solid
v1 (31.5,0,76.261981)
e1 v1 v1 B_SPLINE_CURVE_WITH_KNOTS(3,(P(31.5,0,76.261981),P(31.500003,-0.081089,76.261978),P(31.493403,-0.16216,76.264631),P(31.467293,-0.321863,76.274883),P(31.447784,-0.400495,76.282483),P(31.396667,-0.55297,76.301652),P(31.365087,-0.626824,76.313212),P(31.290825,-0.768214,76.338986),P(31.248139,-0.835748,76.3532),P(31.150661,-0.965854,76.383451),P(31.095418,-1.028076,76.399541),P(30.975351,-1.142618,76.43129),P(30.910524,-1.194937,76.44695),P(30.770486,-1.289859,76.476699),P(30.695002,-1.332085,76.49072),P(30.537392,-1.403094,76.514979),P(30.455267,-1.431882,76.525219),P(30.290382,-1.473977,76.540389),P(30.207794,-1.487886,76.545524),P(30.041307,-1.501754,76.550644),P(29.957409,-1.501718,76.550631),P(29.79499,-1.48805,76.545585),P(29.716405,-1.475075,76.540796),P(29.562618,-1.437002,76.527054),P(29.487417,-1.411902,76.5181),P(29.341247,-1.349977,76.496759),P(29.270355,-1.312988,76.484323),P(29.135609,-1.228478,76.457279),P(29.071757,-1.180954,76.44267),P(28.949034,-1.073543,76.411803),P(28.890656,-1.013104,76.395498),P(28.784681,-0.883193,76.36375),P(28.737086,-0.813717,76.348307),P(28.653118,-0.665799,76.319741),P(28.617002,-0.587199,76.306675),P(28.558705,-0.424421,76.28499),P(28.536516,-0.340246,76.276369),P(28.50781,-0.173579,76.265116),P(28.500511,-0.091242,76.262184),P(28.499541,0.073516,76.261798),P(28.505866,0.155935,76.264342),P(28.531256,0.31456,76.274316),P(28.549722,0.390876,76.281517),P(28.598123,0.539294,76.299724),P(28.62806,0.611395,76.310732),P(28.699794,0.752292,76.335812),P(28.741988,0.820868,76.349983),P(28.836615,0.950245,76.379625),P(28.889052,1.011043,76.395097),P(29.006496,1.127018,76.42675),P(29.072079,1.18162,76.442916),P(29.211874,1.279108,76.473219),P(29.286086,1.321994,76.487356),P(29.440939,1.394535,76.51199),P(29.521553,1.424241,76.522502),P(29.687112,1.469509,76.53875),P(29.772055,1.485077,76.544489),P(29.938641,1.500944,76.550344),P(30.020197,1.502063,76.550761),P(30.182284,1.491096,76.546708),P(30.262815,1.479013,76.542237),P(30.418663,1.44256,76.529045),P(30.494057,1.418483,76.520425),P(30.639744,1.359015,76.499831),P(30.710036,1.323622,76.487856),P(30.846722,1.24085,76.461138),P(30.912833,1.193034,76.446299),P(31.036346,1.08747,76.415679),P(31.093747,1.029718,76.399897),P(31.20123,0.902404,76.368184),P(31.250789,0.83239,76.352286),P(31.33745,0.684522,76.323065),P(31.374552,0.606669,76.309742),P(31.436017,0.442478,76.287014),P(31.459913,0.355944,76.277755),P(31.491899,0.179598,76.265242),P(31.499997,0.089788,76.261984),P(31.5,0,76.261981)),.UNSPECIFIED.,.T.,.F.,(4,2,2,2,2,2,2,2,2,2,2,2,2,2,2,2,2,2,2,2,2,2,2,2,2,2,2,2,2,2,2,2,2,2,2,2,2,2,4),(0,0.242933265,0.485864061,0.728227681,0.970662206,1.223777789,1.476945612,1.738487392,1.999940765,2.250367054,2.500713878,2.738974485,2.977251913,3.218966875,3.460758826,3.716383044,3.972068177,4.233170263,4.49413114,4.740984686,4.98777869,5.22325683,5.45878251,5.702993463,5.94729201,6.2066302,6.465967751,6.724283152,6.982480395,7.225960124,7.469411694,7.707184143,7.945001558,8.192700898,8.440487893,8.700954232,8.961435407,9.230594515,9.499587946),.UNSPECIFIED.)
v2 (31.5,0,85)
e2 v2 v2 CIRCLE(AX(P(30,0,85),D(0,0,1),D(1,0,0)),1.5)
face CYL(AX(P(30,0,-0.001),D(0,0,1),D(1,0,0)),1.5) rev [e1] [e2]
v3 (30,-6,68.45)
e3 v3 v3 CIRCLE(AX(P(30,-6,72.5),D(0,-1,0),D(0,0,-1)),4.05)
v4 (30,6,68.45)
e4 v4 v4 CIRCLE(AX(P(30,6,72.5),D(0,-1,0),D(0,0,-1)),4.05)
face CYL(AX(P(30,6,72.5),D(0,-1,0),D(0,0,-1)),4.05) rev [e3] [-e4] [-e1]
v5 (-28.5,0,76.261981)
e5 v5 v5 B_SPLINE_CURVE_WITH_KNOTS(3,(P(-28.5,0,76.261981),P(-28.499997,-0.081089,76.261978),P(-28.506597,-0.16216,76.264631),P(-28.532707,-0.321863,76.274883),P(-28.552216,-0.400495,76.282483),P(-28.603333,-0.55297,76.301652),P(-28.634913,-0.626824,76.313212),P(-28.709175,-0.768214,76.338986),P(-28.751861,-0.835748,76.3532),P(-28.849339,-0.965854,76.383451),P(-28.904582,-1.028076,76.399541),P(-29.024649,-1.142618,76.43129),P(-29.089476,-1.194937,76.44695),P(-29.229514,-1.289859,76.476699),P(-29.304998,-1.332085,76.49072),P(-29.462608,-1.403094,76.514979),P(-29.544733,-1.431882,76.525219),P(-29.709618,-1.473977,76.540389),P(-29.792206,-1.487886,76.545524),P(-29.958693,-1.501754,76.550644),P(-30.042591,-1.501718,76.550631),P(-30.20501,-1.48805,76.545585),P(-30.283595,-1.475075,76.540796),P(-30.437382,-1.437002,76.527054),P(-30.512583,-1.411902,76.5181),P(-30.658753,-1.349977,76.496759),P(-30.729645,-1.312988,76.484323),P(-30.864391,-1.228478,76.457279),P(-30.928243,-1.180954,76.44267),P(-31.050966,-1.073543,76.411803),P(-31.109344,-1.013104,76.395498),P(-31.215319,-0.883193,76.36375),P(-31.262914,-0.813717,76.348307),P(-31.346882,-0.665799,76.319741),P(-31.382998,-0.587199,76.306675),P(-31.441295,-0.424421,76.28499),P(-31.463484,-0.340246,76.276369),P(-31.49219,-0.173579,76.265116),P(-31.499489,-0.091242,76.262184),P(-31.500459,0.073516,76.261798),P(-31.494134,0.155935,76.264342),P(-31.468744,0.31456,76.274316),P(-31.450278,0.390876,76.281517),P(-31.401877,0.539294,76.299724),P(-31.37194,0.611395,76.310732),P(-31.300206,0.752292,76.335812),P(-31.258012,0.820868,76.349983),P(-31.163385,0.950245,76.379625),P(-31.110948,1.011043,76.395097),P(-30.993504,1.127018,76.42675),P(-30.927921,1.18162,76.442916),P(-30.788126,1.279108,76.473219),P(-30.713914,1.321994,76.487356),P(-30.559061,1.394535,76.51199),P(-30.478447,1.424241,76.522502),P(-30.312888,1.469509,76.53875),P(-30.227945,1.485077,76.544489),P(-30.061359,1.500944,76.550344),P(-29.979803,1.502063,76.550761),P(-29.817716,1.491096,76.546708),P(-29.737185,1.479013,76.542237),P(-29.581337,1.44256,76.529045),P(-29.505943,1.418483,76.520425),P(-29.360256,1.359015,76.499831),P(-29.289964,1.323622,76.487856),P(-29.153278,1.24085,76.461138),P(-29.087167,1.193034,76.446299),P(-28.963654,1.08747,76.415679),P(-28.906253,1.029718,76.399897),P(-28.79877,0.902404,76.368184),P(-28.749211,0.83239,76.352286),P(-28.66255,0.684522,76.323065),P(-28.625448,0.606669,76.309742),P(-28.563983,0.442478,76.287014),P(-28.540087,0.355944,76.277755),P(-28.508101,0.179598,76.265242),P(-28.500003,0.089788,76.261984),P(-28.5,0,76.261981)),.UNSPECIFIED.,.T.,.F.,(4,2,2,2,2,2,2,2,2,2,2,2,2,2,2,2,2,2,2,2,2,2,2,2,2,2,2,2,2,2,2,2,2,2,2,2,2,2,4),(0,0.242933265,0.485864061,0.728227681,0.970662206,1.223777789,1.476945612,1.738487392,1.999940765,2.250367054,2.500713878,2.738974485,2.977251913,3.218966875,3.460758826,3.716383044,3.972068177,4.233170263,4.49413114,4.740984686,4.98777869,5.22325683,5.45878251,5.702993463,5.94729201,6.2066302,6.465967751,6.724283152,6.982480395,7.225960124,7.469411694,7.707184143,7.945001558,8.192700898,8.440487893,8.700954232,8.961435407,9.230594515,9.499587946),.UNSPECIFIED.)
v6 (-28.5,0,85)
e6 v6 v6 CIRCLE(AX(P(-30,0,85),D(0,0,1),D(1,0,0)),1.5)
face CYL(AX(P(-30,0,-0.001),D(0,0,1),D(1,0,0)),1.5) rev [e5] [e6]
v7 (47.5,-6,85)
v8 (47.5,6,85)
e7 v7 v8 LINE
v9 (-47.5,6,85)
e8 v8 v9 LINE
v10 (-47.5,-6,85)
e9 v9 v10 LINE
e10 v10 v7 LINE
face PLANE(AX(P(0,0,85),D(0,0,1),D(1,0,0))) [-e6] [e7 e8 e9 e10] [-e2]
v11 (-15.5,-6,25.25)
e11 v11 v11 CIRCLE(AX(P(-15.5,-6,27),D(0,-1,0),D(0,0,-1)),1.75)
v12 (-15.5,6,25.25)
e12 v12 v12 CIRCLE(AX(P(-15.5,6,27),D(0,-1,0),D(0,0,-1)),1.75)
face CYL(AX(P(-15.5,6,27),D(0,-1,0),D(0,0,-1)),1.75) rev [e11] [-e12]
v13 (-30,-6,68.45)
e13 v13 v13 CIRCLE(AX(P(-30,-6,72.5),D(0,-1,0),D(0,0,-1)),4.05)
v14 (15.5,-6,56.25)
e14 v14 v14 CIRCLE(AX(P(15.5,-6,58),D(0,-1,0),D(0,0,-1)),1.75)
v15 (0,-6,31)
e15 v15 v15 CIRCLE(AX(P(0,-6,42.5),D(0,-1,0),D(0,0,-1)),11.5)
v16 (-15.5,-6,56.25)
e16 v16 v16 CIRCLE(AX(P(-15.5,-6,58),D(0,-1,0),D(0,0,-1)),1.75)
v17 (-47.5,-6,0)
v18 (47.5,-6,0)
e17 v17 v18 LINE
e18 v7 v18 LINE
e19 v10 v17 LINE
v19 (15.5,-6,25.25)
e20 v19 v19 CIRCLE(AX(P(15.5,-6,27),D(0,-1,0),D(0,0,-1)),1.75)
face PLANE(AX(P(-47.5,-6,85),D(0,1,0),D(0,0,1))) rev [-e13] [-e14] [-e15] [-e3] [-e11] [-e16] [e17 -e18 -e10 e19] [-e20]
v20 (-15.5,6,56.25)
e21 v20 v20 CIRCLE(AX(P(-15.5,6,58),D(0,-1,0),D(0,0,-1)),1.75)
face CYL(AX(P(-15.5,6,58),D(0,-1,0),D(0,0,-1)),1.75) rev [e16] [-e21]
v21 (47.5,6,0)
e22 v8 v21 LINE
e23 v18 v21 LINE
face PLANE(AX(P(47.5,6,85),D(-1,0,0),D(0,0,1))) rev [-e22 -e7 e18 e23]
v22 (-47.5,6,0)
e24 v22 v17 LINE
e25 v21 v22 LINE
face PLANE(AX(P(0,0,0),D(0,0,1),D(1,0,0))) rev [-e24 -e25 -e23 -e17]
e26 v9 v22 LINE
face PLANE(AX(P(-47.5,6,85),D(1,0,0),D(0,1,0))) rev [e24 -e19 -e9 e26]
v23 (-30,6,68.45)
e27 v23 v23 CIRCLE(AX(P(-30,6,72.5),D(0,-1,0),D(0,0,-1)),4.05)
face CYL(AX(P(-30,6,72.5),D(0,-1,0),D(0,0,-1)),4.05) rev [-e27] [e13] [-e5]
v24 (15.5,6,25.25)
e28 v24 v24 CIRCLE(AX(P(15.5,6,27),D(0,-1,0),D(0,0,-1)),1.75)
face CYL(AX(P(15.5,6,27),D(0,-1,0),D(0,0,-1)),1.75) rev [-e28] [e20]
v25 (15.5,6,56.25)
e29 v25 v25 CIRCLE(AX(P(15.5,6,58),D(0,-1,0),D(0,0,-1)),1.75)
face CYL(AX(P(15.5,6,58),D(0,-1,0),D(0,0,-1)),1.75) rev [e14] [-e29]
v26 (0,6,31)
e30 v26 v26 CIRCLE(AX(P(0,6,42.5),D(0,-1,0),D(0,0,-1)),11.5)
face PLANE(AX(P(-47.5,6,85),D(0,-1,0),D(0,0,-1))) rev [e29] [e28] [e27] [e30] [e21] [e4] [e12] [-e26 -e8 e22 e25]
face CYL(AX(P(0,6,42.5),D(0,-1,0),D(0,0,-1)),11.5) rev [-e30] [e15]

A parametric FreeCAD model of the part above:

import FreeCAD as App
import Part
import Sketcher
from FreeCAD import Vector
Q = App.Units.Quantity


def add_polygon(sketch, points):
    """Adds a closed chain of lines whose ends are joined by coincident constraints."""
    first, n = sketch.GeometryCount, len(points)
    for a, b in zip(points, points[1:] + points[:1]):
        sketch.addGeometry(Part.LineSegment(App.Vector(*a, 0), App.Vector(*b, 0)), False)
    for i in range(n):
        sketch.addConstraint(Sketcher.Constraint("Coincident", first + i, 2, first + (i + 1) % n, 1))

doc = App.newDocument("Part")
body = doc.addObject("PartDesign::Body", "Body")

sketch1 = body.newObject("Sketcher::SketchObject", "Sketch")
sketch1.AttachmentSupport = (doc.getObject("XY_Plane"), [""])
sketch1.MapMode = "FlatFace"
add_polygon(sketch1, [(-48, 6), (-48, -6), (48, -6), (48, 6)])
sketch1.addConstraint([
    Sketcher.Constraint("Vertical", 0),
    Sketcher.Constraint("Horizontal", 1),
    Sketcher.Constraint("Vertical", 2),
    Sketcher.Constraint("Horizontal", 3),
    Sketcher.Constraint("Symmetric", 0, 2, 2, 2, -1, 1),
    Sketcher.Constraint("DistanceX", 1, 1, 1, 2, Q("95 mm")),
    Sketcher.Constraint("DistanceY", 0, 2, 0, 1, Q("12 mm")),
])
pad1 = body.newObject("PartDesign::Pad", "Pad")
pad1.Profile = sketch1
pad1.Length = 85

sketch2 = body.newObject("Sketcher::SketchObject", "Sketch001")
sketch2.AttachmentSupport = (doc.getObject("XZ_Plane"), [""])
sketch2.MapMode = "FlatFace"
sketch2.AttachmentOffset = App.Placement(Vector(0, 0, 6), App.Rotation())
sketch2.addGeometry([
    Part.Circle(Vector(-30, 72.5, 0), Vector(0, 0, 1), 4),
    Part.Circle(Vector(30, 72.5, 0), Vector(0, 0, 1), 4),
    Part.Circle(Vector(0, 42.5, 0), Vector(0, 0, 1), 11.5),
], False)
sketch2.addConstraint([
    Sketcher.Constraint("Equal", 0, 1),
    Sketcher.Constraint("Symmetric", 0, 3, 1, 3, -2),
    Sketcher.Constraint("PointOnObject", 2, 3, -2),
    Sketcher.Constraint("Diameter", 2, Q("23 mm")),
    Sketcher.Constraint("Diameter", 0, Q("8.1 mm")),
    Sketcher.Constraint("DistanceX", 0, 3, -1, 1, Q("30 mm")),
    Sketcher.Constraint("DistanceY", 2, 3, 0, 3, Q("30 mm")),
    Sketcher.Constraint("DistanceY", -1, 1, 0, 3, Q("72.5 mm")),
])
pocket1 = body.newObject("PartDesign::Pocket", "Pocket")
pocket1.Profile = sketch2
pocket1.Type = "ThroughAll"

sketch3 = body.newObject("Sketcher::SketchObject", "Sketch002")
sketch3.AttachmentSupport = (doc.getObject("XY_Plane"), [""])
sketch3.MapMode = "FlatFace"
sketch3.AttachmentOffset = App.Placement(Vector(0, 0, 85), App.Rotation())
sketch3.addGeometry(Part.Circle(Vector(30, 0, 0), Vector(0, 0, 1), 1.5), False)
sketch3.addConstraint([
    Sketcher.Constraint("PointOnObject", 0, 3, -1),
    Sketcher.Constraint("Diameter", 0, Q("3 mm")),
    Sketcher.Constraint("DistanceX", -1, 1, 0, 3, Q("30 mm")),
])
pocket2 = body.newObject("PartDesign::Pocket", "Pocket001")
pocket2.Profile = sketch3
pocket2.Type = "UpToFirst"

sketch4 = body.newObject("Sketcher::SketchObject", "Sketch003")
sketch4.AttachmentSupport = (doc.getObject("XY_Plane"), [""])
sketch4.MapMode = "FlatFace"
sketch4.AttachmentOffset = App.Placement(Vector(0, 0, 85), App.Rotation())
sketch4.addGeometry(Part.Circle(Vector(-30, 0, 0), Vector(0, 0, 1), 1.5), False)
sketch4.addConstraint([
    Sketcher.Constraint("PointOnObject", 0, 3, -1),
    Sketcher.Constraint("Diameter", 0, Q("3 mm")),
    Sketcher.Constraint("DistanceX", 0, 3, -1, 1, Q("30 mm")),
])
pocket3 = body.newObject("PartDesign::Pocket", "Pocket002")
pocket3.Profile = sketch4
pocket3.Type = "UpToFirst"

sketch5 = body.newObject("Sketcher::SketchObject", "Sketch004")
sketch5.AttachmentSupport = (doc.getObject("XZ_Plane"), [""])
sketch5.MapMode = "FlatFace"
sketch5.AttachmentOffset = App.Placement(Vector(0, 0, 6), App.Rotation())
sketch5.addGeometry([
    Part.Circle(Vector(-15.5, 58, 0), Vector(0, 0, 1), 1.8),
    Part.Circle(Vector(-15.5, 27, 0), Vector(0, 0, 1), 1.8),
    Part.Circle(Vector(15.5, 58, 0), Vector(0, 0, 1), 1.8),
    Part.Circle(Vector(15.5, 27, 0), Vector(0, 0, 1), 1.8),
], False)
sketch5.addConstraint([
    Sketcher.Constraint("Equal", 0, 1),
    Sketcher.Constraint("Equal", 1, 2),
    Sketcher.Constraint("Equal", 2, 3),
    Sketcher.Constraint("Symmetric", 0, 3, 2, 3, -2),
    Sketcher.Constraint("Symmetric", 1, 3, 3, 3, -2),
    Sketcher.Constraint("Vertical", 0, 3, 1, 3),
    Sketcher.Constraint("Diameter", 0, Q("3.5 mm")),
    Sketcher.Constraint("DistanceY", -1, 1, 0, 3, Q("58 mm")),
    Sketcher.Constraint("DistanceY", -1, 1, 1, 3, Q("27 mm")),
    Sketcher.Constraint("DistanceX", 0, 3, 2, 3, Q("31 mm")),
])
pocket4 = body.newObject("PartDesign::Pocket", "Pocket003")
pocket4.Profile = sketch5
pocket4.Type = "ThroughAll"

doc.recompute()
